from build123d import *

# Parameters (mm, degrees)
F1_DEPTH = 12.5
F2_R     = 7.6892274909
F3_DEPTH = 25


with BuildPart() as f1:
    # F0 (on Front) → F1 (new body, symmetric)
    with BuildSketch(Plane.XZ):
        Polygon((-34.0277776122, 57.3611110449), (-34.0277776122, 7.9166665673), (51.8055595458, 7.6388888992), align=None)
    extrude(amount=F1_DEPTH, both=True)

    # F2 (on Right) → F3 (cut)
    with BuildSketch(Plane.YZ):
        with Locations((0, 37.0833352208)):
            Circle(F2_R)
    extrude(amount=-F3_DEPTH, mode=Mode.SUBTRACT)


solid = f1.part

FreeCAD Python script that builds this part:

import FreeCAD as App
import Part
import Sketcher
Q = App.Units.Quantity

doc = App.newDocument("Part")
body = doc.addObject("PartDesign::Body", "Body")

sketch1 = doc.addObject("Sketcher::SketchObject", "Sketch")
body.addObject(sketch1)
sketch1.AttachmentSupport = (doc.XZ_Plane, [""])
sketch1.MapMode = "FlatFace"
sketch1.addGeometry([
    Part.LineSegment(App.Vector(-34.027778, 57.361111, 0), App.Vector(-34.027778, 7.916667, 0)),
    Part.LineSegment(App.Vector(-34.027778, 7.916667, 0), App.Vector(51.80556, 7.638889, 0)),
    Part.LineSegment(App.Vector(51.80556, 7.638889, 0), App.Vector(-34.027778, 57.361111, 0)),
], False)
sketch1.addConstraint([
    Sketcher.Constraint("Coincident", 0, 2, 1, 1),
    Sketcher.Constraint("Coincident", 1, 2, 2, 1),
    Sketcher.Constraint("Coincident", 2, 2, 0, 1),
    Sketcher.Constraint("Vertical", 0),
    Sketcher.Constraint("DistanceY", 0, 2, 0, 1, Q("49.444444 mm")),
    Sketcher.Constraint("DistanceX", -1, 1, 1, 2, Q("51.80556 mm")),
    Sketcher.Constraint("DistanceY", -1, 1, 1, 2, Q("7.638889 mm")),
    Sketcher.Constraint("DistanceY", -1, 1, 2, 2, Q("57.361111 mm")),
    Sketcher.Constraint("Distance", 1, Q("85.833787 mm")),
])
pad1 = doc.addObject("PartDesign::Pad", "Pad")
body.addObject(pad1)
pad1.Profile = sketch1
pad1.Length = 25
pad1.Midplane = True

sketch2 = doc.addObject("Sketcher::SketchObject", "Sketch001")
body.addObject(sketch2)
sketch2.AttachmentSupport = (doc.YZ_Plane, [""])
sketch2.MapMode = "FlatFace"
sketch2.addGeometry(Part.Circle(App.Vector(0, 37.083335, 0), App.Vector(0, 0, 1), 7.689227), False)
sketch2.addConstraint([
    Sketcher.Constraint("PointOnObject", 0, 3, -2),
    Sketcher.Constraint("Diameter", 0, Q("15.378455 mm")),
    Sketcher.Constraint("DistanceY", -1, 1, 0, 3, Q("37.083335 mm")),
])
pocket1 = doc.addObject("PartDesign::Pocket", "Pocket")
body.addObject(pocket1)
pocket1.Profile = sketch2
pocket1.Length = 25

doc.recompute()
